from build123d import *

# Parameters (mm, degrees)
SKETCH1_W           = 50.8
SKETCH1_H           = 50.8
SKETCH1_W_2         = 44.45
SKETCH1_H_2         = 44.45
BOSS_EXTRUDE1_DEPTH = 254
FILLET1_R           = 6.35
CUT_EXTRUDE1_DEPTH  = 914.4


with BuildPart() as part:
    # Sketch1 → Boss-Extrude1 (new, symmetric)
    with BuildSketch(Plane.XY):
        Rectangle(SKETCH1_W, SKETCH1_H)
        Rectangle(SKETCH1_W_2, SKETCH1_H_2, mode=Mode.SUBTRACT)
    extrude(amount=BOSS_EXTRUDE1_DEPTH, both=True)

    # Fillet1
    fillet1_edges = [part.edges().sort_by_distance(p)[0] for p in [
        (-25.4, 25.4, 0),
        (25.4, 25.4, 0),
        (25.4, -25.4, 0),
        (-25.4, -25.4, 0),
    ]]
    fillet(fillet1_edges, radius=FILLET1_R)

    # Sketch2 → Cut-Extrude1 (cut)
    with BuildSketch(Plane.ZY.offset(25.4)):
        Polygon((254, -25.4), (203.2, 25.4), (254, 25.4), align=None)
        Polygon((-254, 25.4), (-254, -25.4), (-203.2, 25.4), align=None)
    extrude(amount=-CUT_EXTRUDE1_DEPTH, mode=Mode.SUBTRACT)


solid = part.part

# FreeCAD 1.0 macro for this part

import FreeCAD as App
import Part
import Sketcher
from FreeCAD import Vector
Q = App.Units.Quantity


def edges_at(feature, points):
    """Names of the edges that pass closest to the given points."""
    edges = feature.Shape.Edges
    near = lambda p: min(range(len(edges)), key=lambda i: edges[i].distToShape(Part.Vertex(*p))[0])
    return sorted({f"Edge{near(p) + 1}" for p in points})

doc = App.newDocument("Part")
params = doc.addObject("Spreadsheet::Sheet", "Params")
for row, (alias, value) in enumerate([
    ("sketch1_width", "2 in"),
    ("sketch1_width2", "1.75 in"),
    ("pad1_length", "20 in"),
    ("fillet_radius", "0.25 in"),
    ("sketch2_width", "2 in"),
    ("pocket1_length", "36 in"),
], start=1):
    params.set(f"A{row}", alias)
    params.set(f"B{row}", "=" + value)
    params.setAlias(f"B{row}", alias)

body = doc.addObject("PartDesign::Body", "Body")

# Sketch on XY plane
sketch1 = body.newObject("Sketcher::SketchObject", "Sketch")
sketch1.AttachmentSupport = (doc.getObject("XY_Plane"), [""])
sketch1.MapMode = "FlatFace"
sketch1.addGeometry(Part.LineSegment(Vector(-25, 25, 0), Vector(-25, -25, 0)), False)
sketch1.addGeometry(Part.LineSegment(Vector(-25, -25, 0), Vector(25, -25, 0)), False)
sketch1.addGeometry(Part.LineSegment(Vector(25, -25, 0), Vector(25, 25, 0)), False)
sketch1.addGeometry(Part.LineSegment(Vector(25, 25, 0), Vector(-25, 25, 0)), False)
sketch1.addGeometry(Part.LineSegment(Vector(22, -22, 0), Vector(-22, -22, 0)), False)
sketch1.addGeometry(Part.LineSegment(Vector(-22, -22, 0), Vector(-22, 22, 0)), False)
sketch1.addGeometry(Part.LineSegment(Vector(-22, 22, 0), Vector(22, 22, 0)), False)
sketch1.addGeometry(Part.LineSegment(Vector(22, 22, 0), Vector(22, -22, 0)), False)
sketch1.addConstraint(Sketcher.Constraint("Coincident", 0, 2, 1, 1))
sketch1.addConstraint(Sketcher.Constraint("Coincident", 1, 2, 2, 1))
sketch1.addConstraint(Sketcher.Constraint("Coincident", 2, 2, 3, 1))
sketch1.addConstraint(Sketcher.Constraint("Coincident", 3, 2, 0, 1))
sketch1.addConstraint(Sketcher.Constraint("Coincident", 4, 2, 5, 1))
sketch1.addConstraint(Sketcher.Constraint("Coincident", 5, 2, 6, 1))
sketch1.addConstraint(Sketcher.Constraint("Coincident", 6, 2, 7, 1))
sketch1.addConstraint(Sketcher.Constraint("Coincident", 7, 2, 4, 1))
sketch1.addConstraint(Sketcher.Constraint("Vertical", 0))
sketch1.addConstraint(Sketcher.Constraint("Horizontal", 1))
sketch1.addConstraint(Sketcher.Constraint("Vertical", 2))
sketch1.addConstraint(Sketcher.Constraint("Horizontal", 3))
sketch1.addConstraint(Sketcher.Constraint("Horizontal", 4))
sketch1.addConstraint(Sketcher.Constraint("Vertical", 5))
sketch1.addConstraint(Sketcher.Constraint("Horizontal", 6))
sketch1.addConstraint(Sketcher.Constraint("Vertical", 7))
sketch1.addConstraint(Sketcher.Constraint("Symmetric", 0, 2, 2, 2, -1, 1))
sketch1.addConstraint(Sketcher.Constraint("Symmetric", 4, 2, 6, 2, -1, 1))
sketch1.addConstraint(Sketcher.Constraint("Equal", 3, 0))
sketch1.addConstraint(Sketcher.Constraint("Equal", 6, 5))
sketch1.addConstraint(Sketcher.Constraint("DistanceX", 1, 1, 1, 2, Q("2 in")))
sketch1.addConstraint(Sketcher.Constraint("DistanceX", 4, 2, 4, 1, Q("1.75 in")))
sketch1.setExpression("Constraints[20]", "Params.sketch1_width")
sketch1.setExpression("Constraints[21]", "Params.sketch1_width2")
pad1 = body.newObject("PartDesign::Pad", "Pad")
pad1.Profile = sketch1
pad1.setExpression("Length", "Params.pad1_length")
pad1.Midplane = True
doc.recompute()

fillet = body.newObject("PartDesign::Fillet", "Fillet")
fillet.Base = (pad1, edges_at(pad1, [
    (-25.4, 25.4, 0),
    (25.4, 25.4, 0),
    (25.4, -25.4, 0),
    (-25.4, -25.4, 0),
]))
fillet.setExpression("Radius", "Params.fillet_radius")

# Sketch on YZ plane
sketch2 = body.newObject("Sketcher::SketchObject", "Sketch001")
sketch2.AttachmentSupport = (doc.getObject("YZ_Plane"), [""])
sketch2.MapMode = "FlatFace"
sketch2.AttachmentOffset = App.Placement(Vector(0, 0, -1 * 25.4), App.Rotation())
sketch2.addGeometry(Part.LineSegment(Vector(25, 203, 0), Vector(-25, 254, 0)), False)
sketch2.addGeometry(Part.LineSegment(Vector(-25, 254, 0), Vector(25, 254, 0)), False)
sketch2.addGeometry(Part.LineSegment(Vector(25, 254, 0), Vector(25, 203, 0)), False)
sketch2.addGeometry(Part.LineSegment(Vector(25, -254, 0), Vector(-25, -254, 0)), False)
sketch2.addGeometry(Part.LineSegment(Vector(-25, -254, 0), Vector(25, -203, 0)), False)
sketch2.addGeometry(Part.LineSegment(Vector(25, -203, 0), Vector(25, -254, 0)), False)
sketch2.addConstraint(Sketcher.Constraint("Coincident", 0, 2, 1, 1))
sketch2.addConstraint(Sketcher.Constraint("Coincident", 1, 2, 2, 1))
sketch2.addConstraint(Sketcher.Constraint("Coincident", 2, 2, 0, 1))
sketch2.addConstraint(Sketcher.Constraint("Coincident", 3, 2, 4, 1))
sketch2.addConstraint(Sketcher.Constraint("Coincident", 4, 2, 5, 1))
sketch2.addConstraint(Sketcher.Constraint("Coincident", 5, 2, 3, 1))
sketch2.addConstraint(Sketcher.Constraint("Horizontal", 1))
sketch2.addConstraint(Sketcher.Constraint("Vertical", 2))
sketch2.addConstraint(Sketcher.Constraint("Horizontal", 3))
sketch2.addConstraint(Sketcher.Constraint("Vertical", 5))
sketch2.addConstraint(Sketcher.Constraint("Symmetric", 1, 2, 3, 2, -1, 1))
sketch2.addConstraint(Sketcher.Constraint("Symmetric", 2, 2, 4, 2, -1))
sketch2.addConstraint(Sketcher.Constraint("Perpendicular", 0, 4))
sketch2.addConstraint(Sketcher.Constraint("Vertical", 0, 2, 3, 2))
sketch2.addConstraint(Sketcher.Constraint("DistanceX", 1, 1, 1, 2, Q("2 in")))
sketch2.addConstraint(Sketcher.Constraint("DistanceY", -1, 1, 0, 2, Q("10 in")))
sketch2.setExpression("Constraints[14]", "Params.sketch2_width")
pocket1 = body.newObject("PartDesign::Pocket", "Pocket")
pocket1.Profile = sketch2
pocket1.setExpression("Length", "Params.pocket1_length")
pocket1.Reversed = True

doc.recompute()
